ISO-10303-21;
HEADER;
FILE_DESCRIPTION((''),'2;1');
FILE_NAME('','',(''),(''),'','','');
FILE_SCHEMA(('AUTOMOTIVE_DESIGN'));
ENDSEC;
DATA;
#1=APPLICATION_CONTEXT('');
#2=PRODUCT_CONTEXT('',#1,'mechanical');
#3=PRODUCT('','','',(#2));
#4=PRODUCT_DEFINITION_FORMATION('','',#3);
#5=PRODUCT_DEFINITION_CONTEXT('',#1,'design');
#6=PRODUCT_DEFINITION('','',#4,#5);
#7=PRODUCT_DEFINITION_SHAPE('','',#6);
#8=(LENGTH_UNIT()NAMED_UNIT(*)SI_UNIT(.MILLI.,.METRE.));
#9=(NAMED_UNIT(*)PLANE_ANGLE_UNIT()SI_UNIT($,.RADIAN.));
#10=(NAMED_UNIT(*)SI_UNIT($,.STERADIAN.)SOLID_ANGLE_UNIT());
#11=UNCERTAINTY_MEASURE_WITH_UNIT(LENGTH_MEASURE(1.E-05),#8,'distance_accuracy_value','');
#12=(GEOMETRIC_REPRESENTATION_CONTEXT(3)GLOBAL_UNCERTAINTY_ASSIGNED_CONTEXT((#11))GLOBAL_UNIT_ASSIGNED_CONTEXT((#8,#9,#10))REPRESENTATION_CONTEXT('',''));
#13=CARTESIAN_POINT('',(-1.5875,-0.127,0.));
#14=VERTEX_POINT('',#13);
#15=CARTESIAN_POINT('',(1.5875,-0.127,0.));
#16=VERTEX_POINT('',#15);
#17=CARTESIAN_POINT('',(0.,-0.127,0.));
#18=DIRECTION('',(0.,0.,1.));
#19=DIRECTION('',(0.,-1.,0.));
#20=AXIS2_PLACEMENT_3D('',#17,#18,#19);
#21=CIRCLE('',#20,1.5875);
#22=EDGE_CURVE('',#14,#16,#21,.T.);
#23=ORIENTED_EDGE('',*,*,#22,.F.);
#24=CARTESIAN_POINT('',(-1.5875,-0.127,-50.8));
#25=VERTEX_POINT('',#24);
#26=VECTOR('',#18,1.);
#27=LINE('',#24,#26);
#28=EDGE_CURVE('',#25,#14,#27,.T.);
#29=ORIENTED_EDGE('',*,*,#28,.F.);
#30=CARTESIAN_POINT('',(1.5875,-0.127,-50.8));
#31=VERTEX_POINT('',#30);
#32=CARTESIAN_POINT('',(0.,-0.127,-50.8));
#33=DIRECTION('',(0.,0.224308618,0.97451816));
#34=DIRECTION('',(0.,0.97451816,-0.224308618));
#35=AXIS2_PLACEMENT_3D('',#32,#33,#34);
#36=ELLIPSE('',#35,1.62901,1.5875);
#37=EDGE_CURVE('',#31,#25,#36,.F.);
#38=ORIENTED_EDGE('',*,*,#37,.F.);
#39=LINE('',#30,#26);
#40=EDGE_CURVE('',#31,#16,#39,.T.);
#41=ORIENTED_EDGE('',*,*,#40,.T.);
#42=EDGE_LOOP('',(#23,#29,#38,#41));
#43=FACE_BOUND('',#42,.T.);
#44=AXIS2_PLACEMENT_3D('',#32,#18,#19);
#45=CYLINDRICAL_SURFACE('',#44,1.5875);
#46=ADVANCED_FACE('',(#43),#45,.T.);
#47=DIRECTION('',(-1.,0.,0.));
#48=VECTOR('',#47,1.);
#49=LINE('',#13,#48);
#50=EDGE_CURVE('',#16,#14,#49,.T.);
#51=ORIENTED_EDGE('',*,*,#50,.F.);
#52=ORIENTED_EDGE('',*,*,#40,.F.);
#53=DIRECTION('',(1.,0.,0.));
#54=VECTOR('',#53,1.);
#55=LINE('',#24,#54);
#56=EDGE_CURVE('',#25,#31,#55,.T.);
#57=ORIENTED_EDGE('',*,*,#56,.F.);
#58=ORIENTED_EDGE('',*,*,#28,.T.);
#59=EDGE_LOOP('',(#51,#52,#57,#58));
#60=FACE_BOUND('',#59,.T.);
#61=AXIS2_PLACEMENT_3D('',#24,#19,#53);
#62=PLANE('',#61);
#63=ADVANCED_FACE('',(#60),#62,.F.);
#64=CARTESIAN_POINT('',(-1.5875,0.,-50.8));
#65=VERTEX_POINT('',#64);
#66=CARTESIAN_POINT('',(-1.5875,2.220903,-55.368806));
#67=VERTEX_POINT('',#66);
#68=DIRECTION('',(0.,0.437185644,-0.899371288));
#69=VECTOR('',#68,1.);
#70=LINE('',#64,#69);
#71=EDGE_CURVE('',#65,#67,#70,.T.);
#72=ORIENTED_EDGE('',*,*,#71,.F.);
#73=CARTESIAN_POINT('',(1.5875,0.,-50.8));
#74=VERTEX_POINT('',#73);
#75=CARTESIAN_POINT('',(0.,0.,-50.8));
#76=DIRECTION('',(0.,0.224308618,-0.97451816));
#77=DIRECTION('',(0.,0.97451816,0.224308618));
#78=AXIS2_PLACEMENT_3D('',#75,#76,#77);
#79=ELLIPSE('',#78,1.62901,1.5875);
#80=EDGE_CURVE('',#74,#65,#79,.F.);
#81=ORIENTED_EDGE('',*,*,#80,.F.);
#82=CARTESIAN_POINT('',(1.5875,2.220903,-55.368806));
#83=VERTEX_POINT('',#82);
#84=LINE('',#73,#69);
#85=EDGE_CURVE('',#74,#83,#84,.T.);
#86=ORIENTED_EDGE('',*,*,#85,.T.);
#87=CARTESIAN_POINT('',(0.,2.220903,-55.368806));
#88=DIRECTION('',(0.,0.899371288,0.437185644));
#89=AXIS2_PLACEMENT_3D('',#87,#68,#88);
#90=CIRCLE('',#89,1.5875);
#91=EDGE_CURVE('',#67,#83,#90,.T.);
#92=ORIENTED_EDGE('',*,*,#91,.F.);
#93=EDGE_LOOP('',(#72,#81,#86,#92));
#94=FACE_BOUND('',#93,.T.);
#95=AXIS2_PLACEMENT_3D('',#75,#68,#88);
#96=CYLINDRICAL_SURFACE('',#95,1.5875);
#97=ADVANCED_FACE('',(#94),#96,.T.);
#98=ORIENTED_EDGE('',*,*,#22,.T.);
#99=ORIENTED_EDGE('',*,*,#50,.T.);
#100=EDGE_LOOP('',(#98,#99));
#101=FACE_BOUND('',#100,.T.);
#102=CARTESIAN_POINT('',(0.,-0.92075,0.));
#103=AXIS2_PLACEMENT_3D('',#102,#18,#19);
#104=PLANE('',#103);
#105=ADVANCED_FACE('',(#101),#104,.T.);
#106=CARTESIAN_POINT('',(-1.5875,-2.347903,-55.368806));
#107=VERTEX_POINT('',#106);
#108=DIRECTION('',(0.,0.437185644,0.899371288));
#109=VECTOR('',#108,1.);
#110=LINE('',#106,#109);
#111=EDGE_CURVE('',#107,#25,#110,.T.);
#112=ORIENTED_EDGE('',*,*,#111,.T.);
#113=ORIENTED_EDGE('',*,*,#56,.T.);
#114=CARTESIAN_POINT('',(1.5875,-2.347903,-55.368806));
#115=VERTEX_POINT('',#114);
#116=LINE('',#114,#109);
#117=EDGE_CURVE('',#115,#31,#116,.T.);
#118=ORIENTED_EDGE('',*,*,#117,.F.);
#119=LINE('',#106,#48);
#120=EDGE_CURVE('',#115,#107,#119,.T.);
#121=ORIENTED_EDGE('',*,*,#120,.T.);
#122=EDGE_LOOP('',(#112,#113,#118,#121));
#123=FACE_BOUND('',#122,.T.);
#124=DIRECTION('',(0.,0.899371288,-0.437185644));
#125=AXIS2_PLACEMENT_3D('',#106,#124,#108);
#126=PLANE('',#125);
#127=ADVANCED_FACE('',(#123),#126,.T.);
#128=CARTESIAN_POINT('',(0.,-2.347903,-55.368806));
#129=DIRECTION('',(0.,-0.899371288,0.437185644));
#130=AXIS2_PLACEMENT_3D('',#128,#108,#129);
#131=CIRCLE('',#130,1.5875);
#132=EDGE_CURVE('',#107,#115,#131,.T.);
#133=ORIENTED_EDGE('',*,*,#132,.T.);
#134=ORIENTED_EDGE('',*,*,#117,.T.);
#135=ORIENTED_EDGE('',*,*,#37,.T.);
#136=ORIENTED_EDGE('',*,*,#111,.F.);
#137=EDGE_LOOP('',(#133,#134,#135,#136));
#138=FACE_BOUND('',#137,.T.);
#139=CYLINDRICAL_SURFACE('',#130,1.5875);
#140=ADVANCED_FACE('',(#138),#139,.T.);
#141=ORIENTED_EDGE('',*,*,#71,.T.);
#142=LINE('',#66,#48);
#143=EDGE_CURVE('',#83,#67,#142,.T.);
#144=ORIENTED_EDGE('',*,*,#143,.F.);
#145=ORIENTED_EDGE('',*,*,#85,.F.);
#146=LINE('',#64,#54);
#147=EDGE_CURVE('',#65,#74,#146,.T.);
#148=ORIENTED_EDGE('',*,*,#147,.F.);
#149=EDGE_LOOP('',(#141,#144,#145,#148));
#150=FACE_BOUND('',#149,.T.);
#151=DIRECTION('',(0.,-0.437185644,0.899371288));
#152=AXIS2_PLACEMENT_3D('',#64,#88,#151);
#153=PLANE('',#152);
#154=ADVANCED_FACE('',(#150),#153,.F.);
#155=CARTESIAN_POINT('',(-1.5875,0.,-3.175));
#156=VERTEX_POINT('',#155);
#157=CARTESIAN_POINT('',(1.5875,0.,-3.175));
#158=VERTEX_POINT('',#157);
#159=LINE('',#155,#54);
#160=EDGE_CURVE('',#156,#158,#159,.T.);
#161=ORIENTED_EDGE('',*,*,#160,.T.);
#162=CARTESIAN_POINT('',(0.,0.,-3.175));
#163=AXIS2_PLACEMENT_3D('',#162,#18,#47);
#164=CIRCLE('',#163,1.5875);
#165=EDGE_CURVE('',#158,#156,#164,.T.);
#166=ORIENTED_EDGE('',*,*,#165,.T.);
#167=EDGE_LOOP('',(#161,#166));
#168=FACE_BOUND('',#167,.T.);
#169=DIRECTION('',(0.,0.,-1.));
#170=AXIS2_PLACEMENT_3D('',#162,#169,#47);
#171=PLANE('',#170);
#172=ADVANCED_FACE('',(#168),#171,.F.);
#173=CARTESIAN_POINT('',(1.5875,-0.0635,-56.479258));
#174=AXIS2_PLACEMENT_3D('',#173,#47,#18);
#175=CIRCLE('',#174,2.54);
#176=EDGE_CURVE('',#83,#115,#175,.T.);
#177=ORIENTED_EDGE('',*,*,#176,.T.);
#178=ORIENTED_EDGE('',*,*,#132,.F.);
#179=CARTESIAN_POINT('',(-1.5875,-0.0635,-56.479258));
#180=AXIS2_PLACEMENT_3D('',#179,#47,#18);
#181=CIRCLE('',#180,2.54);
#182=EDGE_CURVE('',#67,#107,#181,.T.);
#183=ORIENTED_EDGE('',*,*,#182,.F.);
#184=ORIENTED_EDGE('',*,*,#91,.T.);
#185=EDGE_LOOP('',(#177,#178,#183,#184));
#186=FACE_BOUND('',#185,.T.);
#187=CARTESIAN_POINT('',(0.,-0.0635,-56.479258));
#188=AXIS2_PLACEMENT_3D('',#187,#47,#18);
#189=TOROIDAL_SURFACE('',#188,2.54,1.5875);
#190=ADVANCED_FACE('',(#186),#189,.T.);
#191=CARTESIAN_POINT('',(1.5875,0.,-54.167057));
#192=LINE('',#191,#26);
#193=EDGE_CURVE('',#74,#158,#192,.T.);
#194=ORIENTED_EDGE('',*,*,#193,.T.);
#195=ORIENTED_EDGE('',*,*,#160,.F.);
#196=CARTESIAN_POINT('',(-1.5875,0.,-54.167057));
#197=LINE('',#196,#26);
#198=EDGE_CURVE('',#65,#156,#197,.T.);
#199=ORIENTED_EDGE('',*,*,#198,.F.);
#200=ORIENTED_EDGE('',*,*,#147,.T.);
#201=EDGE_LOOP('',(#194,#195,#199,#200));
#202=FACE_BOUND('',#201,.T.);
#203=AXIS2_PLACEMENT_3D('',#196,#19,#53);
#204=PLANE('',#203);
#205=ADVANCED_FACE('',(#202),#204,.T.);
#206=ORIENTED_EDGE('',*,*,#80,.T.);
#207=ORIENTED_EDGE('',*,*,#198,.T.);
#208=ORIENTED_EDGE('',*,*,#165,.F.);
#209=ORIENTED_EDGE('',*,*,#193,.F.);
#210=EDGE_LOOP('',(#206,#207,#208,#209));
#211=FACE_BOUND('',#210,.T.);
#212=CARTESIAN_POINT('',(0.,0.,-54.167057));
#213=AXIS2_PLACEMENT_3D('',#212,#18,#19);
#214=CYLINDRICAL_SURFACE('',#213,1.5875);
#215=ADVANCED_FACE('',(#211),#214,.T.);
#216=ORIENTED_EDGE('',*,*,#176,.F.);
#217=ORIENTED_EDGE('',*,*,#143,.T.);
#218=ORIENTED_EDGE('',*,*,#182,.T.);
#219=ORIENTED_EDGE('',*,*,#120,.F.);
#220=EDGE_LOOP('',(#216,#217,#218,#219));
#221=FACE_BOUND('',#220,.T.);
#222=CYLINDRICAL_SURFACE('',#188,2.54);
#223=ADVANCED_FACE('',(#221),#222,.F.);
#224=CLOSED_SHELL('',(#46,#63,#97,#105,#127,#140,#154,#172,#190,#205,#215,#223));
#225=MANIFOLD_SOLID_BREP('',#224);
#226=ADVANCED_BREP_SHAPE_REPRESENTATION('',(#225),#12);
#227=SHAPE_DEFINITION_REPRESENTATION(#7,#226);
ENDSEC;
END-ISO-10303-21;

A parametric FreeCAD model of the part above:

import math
import FreeCAD as App
import Part
import Sketcher
from FreeCAD import Vector
Q = App.Units.Quantity

doc = App.newDocument("Part")
body = doc.addObject("PartDesign::Body", "Body")

sketch1 = doc.addObject("Sketcher::SketchObject", "Sketch")
body.addObject(sketch1)
sketch1.AttachmentSupport = (doc.XY_Plane, [""])
sketch1.MapMode = "FlatFace"
sketch1.AttachmentOffset = App.Placement(Vector(0, 0, -0.125 * 25.4), App.Rotation())
sketch1.addGeometry([
    Part.LineSegment(Vector(-1.5875, 0, 0), Vector(1.5875, 0, 0)),
    Part.ArcOfCircle(Part.Circle(Vector(0, 0, 0), Vector(0, 0, 1), 1.5875), math.radians(0), math.radians(180)),
], False)
sketch1.addConstraint([
    Sketcher.Constraint("Coincident", 0, 1, 1, 2),
    Sketcher.Constraint("Coincident", 1, 1, 0, 2),
    Sketcher.Constraint("Horizontal", 0),
    Sketcher.Constraint("Coincident", 1, 3, -1, 1),
    Sketcher.Constraint("PointOnObject", 0, 1, -1),
    Sketcher.Constraint("Radius", 1, Q("0.0625 in")),
])

sketch2 = doc.addObject("Sketcher::SketchObject", "Sketch001")
body.addObject(sketch2)
sketch2.AttachmentSupport = (doc.YZ_Plane, [""])
sketch2.MapMode = "FlatFace"
sketch2.addGeometry([
    Part.LineSegment(Vector(0, -3.175, 0), Vector(0, -50.8, 0)),
    Part.LineSegment(Vector(0, -50.8, 0), Vector(2.220903, -55.368806, 0)),
    Part.ArcOfCircle(Part.Circle(Vector(-0.0635, -56.479258, 0), Vector(0, 0, 1), 2.54), math.radians(154.075548), math.radians(385.924452)),
    Part.LineSegment(Vector(-2.347903, -55.368806, 0), Vector(-0.127, -50.8, 0)),
    Part.LineSegment(Vector(-0.127, -50.8, 0), Vector(-0.127, 0, 0)),
], False)
sketch2.addConstraint([
    Sketcher.Constraint("Coincident", 0, 2, 1, 1),
    Sketcher.Constraint("Tangent", 1, 2, 2, 2),
    Sketcher.Constraint("Tangent", 2, 1, 3, 1),
    Sketcher.Constraint("Coincident", 3, 2, 4, 1),
    Sketcher.Constraint("Vertical", 0),
    Sketcher.Constraint("Vertical", 4),
    Sketcher.Constraint("PointOnObject", 0, 1, -2),
    Sketcher.Constraint("PointOnObject", 4, 2, -1),
    Sketcher.Constraint("Horizontal", 1, 2, 2, 1),
    Sketcher.Constraint("Horizontal", 0, 2, 3, 2),
    Sketcher.Constraint("Radius", 2, Q("0.1 in")),
    Sketcher.Constraint("DistanceY", 4, 1, 4, 2, Q("2 in")),
    Sketcher.Constraint("Distance", 1, Q("0.2 in")),
    Sketcher.Constraint("DistanceY", 0, 2, 0, 1, Q("1.875 in")),
    Sketcher.Constraint("DistanceX", 3, 2, -1, 1, Q("0.005 in")),
])
doc.recompute()

additivepipe = doc.addObject("PartDesign::AdditivePipe", "AdditivePipe")
body.addObject(additivepipe)
additivepipe.Profile = sketch1
additivepipe.Spine = (sketch2, ["Edge1", "Edge2", "Edge3", "Edge4", "Edge5"])
additivepipe.Transition = "Right corner"

doc.recompute()
